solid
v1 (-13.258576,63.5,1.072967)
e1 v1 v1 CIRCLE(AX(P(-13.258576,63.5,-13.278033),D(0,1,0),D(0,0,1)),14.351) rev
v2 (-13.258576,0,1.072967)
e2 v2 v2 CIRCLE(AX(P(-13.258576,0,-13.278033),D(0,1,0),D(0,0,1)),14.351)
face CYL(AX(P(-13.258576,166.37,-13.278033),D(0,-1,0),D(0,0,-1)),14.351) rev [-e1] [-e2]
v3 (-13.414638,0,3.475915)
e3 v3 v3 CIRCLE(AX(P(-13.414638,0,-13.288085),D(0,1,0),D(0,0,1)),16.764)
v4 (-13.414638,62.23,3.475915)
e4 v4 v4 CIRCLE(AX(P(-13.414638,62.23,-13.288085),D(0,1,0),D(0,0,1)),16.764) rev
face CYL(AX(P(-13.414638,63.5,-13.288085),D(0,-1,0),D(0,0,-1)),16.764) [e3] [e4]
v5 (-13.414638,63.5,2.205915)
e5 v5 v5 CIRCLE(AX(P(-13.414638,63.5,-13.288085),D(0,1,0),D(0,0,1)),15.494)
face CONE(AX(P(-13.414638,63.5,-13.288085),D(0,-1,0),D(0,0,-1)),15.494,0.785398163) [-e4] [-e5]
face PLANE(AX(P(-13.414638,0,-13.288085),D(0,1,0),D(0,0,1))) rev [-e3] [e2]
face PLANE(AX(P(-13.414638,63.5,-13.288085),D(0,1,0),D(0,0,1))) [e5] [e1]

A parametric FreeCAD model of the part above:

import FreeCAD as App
import Part
import Sketcher

V = App.Vector
Q = App.Units.Quantity


def edges_at(feature, points):
    """Names of the edges that pass closest to the given points."""
    edges = feature.Shape.Edges
    near = lambda p: min(range(len(edges)), key=lambda i: edges[i].distToShape(Part.Vertex(*p))[0])
    return sorted({f"Edge{near(p) + 1}" for p in points})

doc = App.newDocument("Part")
body = doc.addObject("PartDesign::Body", "Body")

sketch1 = doc.addObject("Sketcher::SketchObject", "Sketch")
body.addObject(sketch1)
sketch1.AttachmentSupport = (doc.XZ_Plane, [""])
sketch1.MapMode = "FlatFace"
sketch1.addGeometry(Part.Circle(V(-13.414638, -13.288085, 0), V(0, 0, 1), 16.764), False)
sketch1.addConstraint([
    Sketcher.Constraint("Diameter", 0, Q("1.32 in")),
    Sketcher.Constraint("DistanceX", 0, 3, -1, 1, 13.414638),
    Sketcher.Constraint("DistanceY", 0, 3, -1, 1, 13.288085),
])
pad1 = doc.addObject("PartDesign::Pad", "Pad")
body.addObject(pad1)
pad1.Profile = sketch1
pad1.Length = Q("2.5 in")
pad1.Reversed = True

sketch2 = doc.addObject("Sketcher::SketchObject", "Sketch001")
body.addObject(sketch2)
sketch2.AttachmentSupport = (doc.XZ_Plane, [""])
sketch2.MapMode = "FlatFace"
sketch2.addGeometry(Part.Circle(V(-13.258576, -13.278033, 0), V(0, 0, 1), 14.351), False)
sketch2.addConstraint([
    Sketcher.Constraint("Diameter", 0, Q("1.13 in")),
    Sketcher.Constraint("DistanceX", 0, 3, -1, 1, 13.258576),
    Sketcher.Constraint("DistanceY", 0, 3, -1, 1, 13.278033),
])
pocket1 = doc.addObject("PartDesign::Pocket", "Pocket")
body.addObject(pocket1)
pocket1.Profile = sketch2
pocket1.Length = Q("6.55 in")
doc.recompute()

chamfer = doc.addObject("PartDesign::Chamfer", "Chamfer")
body.addObject(chamfer)
chamfer.Base = (pocket1, edges_at(pocket1, [(-30.179, 63.5, -13.288)]))
chamfer.Size = Q("0.05 in")

doc.recompute()
